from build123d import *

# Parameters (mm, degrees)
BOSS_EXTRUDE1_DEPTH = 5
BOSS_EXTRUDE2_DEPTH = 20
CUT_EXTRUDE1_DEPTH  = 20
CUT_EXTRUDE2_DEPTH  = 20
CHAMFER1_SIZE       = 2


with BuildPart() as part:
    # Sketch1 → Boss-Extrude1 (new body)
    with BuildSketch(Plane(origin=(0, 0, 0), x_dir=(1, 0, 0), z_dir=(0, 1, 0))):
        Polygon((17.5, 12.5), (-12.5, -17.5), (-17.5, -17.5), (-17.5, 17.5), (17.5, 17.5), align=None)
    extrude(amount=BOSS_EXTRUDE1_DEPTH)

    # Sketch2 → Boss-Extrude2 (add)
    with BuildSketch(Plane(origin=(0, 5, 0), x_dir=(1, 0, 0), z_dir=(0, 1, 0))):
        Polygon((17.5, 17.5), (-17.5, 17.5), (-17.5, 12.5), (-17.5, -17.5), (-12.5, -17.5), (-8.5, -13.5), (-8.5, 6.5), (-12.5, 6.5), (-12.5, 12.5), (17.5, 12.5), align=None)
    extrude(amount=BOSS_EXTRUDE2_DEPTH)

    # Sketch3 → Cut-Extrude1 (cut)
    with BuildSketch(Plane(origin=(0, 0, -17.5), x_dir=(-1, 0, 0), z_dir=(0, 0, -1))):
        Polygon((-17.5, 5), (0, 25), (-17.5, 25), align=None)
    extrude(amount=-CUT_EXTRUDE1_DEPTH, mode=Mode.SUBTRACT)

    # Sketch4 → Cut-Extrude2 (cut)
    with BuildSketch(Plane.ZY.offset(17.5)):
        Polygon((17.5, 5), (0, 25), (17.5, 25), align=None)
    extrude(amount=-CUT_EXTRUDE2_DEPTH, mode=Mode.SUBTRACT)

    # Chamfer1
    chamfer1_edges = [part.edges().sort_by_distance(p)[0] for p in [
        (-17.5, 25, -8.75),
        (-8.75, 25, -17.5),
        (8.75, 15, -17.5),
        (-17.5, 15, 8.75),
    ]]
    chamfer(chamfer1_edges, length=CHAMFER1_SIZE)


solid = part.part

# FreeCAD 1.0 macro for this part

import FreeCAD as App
import Part
import Sketcher
from FreeCAD import Vector


def edges_at(feature, points):
    """Names of the edges that pass closest to the given points."""
    edges = feature.Shape.Edges
    near = lambda p: min(range(len(edges)), key=lambda i: edges[i].distToShape(Part.Vertex(*p))[0])
    return sorted({f"Edge{near(p) + 1}" for p in points})


def add_polygon(sketch, points):
    """Adds a closed chain of lines whose ends are joined by coincident constraints."""
    first, n = sketch.GeometryCount, len(points)
    for a, b in zip(points, points[1:] + points[:1]):
        sketch.addGeometry(Part.LineSegment(App.Vector(*a, 0), App.Vector(*b, 0)), False)
    for i in range(n):
        sketch.addConstraint(Sketcher.Constraint("Coincident", first + i, 2, first + (i + 1) % n, 1))

doc = App.newDocument("Part")
params = doc.addObject("Spreadsheet::Sheet", "Params")
for row, (alias, value) in enumerate([
    ("sketch1_width", "35 mm"),
    ("sketch1_width2", "5 mm"),
    ("pad1_length", "5 mm"),
    ("sketch2_width", "35 mm"),
    ("sketch2_width2", "5 mm"),
    ("sketch2_width3", "4 mm"),
    ("sketch2_height", "20 mm"),
    ("sketch2_height2", "6 mm"),
    ("pad2_length", "20 mm"),
    ("sketch3_height", "20 mm"),
    ("sketch3_width", "17.5 mm"),
    ("pocket1_length", "20 mm"),
    ("sketch4_width", "20 mm"),
    ("sketch4_height", "17.5 mm"),
    ("pocket2_length", "20 mm"),
    ("chamfer_size", "2 mm"),
], start=1):
    params.set(f"A{row}", alias)
    params.set(f"B{row}", "=" + value)
    params.setAlias(f"B{row}", alias)

body = doc.addObject("PartDesign::Body", "Body")

sketch1 = doc.addObject("Sketcher::SketchObject", "Sketch")
body.addObject(sketch1)
sketch1.AttachmentSupport = (doc.XZ_Plane, [""])
sketch1.MapMode = "FlatFace"
add_polygon(sketch1, [(-12, 18), (18, -12), (18, -18), (-18, -18), (-18, 18)])
sketch1.addConstraint([
    Sketcher.Constraint("Vertical", 1),
    Sketcher.Constraint("Horizontal", 2),
    Sketcher.Constraint("Vertical", 3),
    Sketcher.Constraint("Horizontal", 4),
    Sketcher.Constraint("Symmetric", 1, 2, 3, 2, -1, 1),
    Sketcher.Constraint("Equal", 4, 1),
    Sketcher.Constraint("Equal", 2, 3),
    Sketcher.Constraint("DistanceX", 2, 2, 2, 1, 35.0),
    Sketcher.Constraint("DistanceX", 4, 1, 4, 2, 5.0),
])
sketch1.setExpression("Constraints[12]", "Params.sketch1_width")
sketch1.setExpression("Constraints[13]", "Params.sketch1_width2")
pad1 = doc.addObject("PartDesign::Pad", "Pad")
body.addObject(pad1)
pad1.Profile = sketch1
pad1.setExpression("Length", "Params.pad1_length")
pad1.Reversed = True

sketch2 = doc.addObject("Sketcher::SketchObject", "Sketch001")
body.addObject(sketch2)
sketch2.AttachmentSupport = (doc.XZ_Plane, [""])
sketch2.MapMode = "FlatFace"
sketch2.AttachmentOffset = App.Placement(Vector(0, 0, -5), App.Rotation())
add_polygon(sketch2, [(17.5, -17.5), (-17.5, -17.5), (-17.5, 17.5), (-12.5, 17.5), (-8.5, 13.5), (-8.5, -6.5), (-12.5, -6.5), (-12.5, -12.5), (17.5, -12.5)])
sketch2.addConstraint([
    Sketcher.Constraint("Horizontal", 0),
    Sketcher.Constraint("Vertical", 1),
    Sketcher.Constraint("Horizontal", 2),
    Sketcher.Constraint("Vertical", 4),
    Sketcher.Constraint("Horizontal", 5),
    Sketcher.Constraint("Vertical", 6),
    Sketcher.Constraint("Horizontal", 7),
    Sketcher.Constraint("Vertical", 8),
    Sketcher.Constraint("Symmetric", 1, 2, 8, 2, -1, 1),
    Sketcher.Constraint("Vertical", 2, 2, 5, 2),
    Sketcher.Constraint("Equal", 0, 1),
    Sketcher.Constraint("Equal", 2, 8),
    Sketcher.Constraint("DistanceX", 0, 2, 0, 1, 35.0),
    Sketcher.Constraint("DistanceX", 2, 1, 2, 2, 5.0),
    Sketcher.Constraint("DistanceX", 5, 2, 5, 1, 4.0),
    Sketcher.Constraint("DistanceY", 4, 2, 4, 1, 20.0),
    Sketcher.Constraint("DistanceY", 6, 2, 6, 1, 6.0),
])
sketch2.setExpression("Constraints[21]", "Params.sketch2_width")
sketch2.setExpression("Constraints[22]", "Params.sketch2_width2")
sketch2.setExpression("Constraints[23]", "Params.sketch2_width3")
sketch2.setExpression("Constraints[24]", "Params.sketch2_height")
sketch2.setExpression("Constraints[25]", "Params.sketch2_height2")
pad2 = doc.addObject("PartDesign::Pad", "Pad001")
body.addObject(pad2)
pad2.Profile = sketch2
pad2.setExpression("Length", "Params.pad2_length")
pad2.Reversed = True

sketch3 = doc.addObject("Sketcher::SketchObject", "Sketch002")
body.addObject(sketch3)
sketch3.AttachmentSupport = (doc.XY_Plane, [""])
sketch3.MapMode = "FlatFace"
sketch3.AttachmentOffset = App.Placement(Vector(0, 0, -17.5), App.Rotation())
add_polygon(sketch3, [(18, 5), (0, 25), (18, 25)])
sketch3.addConstraint([
    Sketcher.Constraint("Horizontal", 1),
    Sketcher.Constraint("Vertical", 2),
    Sketcher.Constraint("PointOnObject", 0, 2, -2),
    Sketcher.Constraint("DistanceY", 2, 2, 2, 1, 20.0),
    Sketcher.Constraint("DistanceX", 1, 1, 1, 2, 17.5),
    Sketcher.Constraint("DistanceY", -1, 1, 0, 2, 25.0),
])
sketch3.setExpression("Constraints[6]", "Params.sketch3_height")
sketch3.setExpression("Constraints[7]", "Params.sketch3_width")
pocket1 = doc.addObject("PartDesign::Pocket", "Pocket")
body.addObject(pocket1)
pocket1.Profile = sketch3
pocket1.setExpression("Length", "Params.pocket1_length")
pocket1.Reversed = True

sketch4 = doc.addObject("Sketcher::SketchObject", "Sketch003")
body.addObject(sketch4)
sketch4.AttachmentSupport = (doc.YZ_Plane, [""])
sketch4.MapMode = "FlatFace"
sketch4.AttachmentOffset = App.Placement(Vector(0, 0, -17.5), App.Rotation())
add_polygon(sketch4, [(25, 0), (5, 18), (25, 18)])
sketch4.addConstraint([
    Sketcher.Constraint("Horizontal", 1),
    Sketcher.Constraint("Vertical", 2),
    Sketcher.Constraint("PointOnObject", 2, 2, -1),
    Sketcher.Constraint("DistanceX", 1, 1, 1, 2, 20.0),
    Sketcher.Constraint("DistanceY", 2, 2, 2, 1, 17.5),
    Sketcher.Constraint("DistanceX", -1, 1, 0, 2, 5.0),
])
sketch4.setExpression("Constraints[6]", "Params.sketch4_width")
sketch4.setExpression("Constraints[7]", "Params.sketch4_height")
pocket2 = doc.addObject("PartDesign::Pocket", "Pocket001")
body.addObject(pocket2)
pocket2.Profile = sketch4
pocket2.setExpression("Length", "Params.pocket2_length")
pocket2.Reversed = True
doc.recompute()

chamfer = doc.addObject("PartDesign::Chamfer", "Chamfer")
body.addObject(chamfer)
chamfer.Base = (pocket2, edges_at(pocket2, [
    (-17.5, 25, -8.75),
    (-8.75, 25, -17.5),
    (8.75, 15, -17.5),
    (-17.5, 15, 8.75),
]))
chamfer.setExpression("Size", "Params.chamfer_size")

doc.recompute()
